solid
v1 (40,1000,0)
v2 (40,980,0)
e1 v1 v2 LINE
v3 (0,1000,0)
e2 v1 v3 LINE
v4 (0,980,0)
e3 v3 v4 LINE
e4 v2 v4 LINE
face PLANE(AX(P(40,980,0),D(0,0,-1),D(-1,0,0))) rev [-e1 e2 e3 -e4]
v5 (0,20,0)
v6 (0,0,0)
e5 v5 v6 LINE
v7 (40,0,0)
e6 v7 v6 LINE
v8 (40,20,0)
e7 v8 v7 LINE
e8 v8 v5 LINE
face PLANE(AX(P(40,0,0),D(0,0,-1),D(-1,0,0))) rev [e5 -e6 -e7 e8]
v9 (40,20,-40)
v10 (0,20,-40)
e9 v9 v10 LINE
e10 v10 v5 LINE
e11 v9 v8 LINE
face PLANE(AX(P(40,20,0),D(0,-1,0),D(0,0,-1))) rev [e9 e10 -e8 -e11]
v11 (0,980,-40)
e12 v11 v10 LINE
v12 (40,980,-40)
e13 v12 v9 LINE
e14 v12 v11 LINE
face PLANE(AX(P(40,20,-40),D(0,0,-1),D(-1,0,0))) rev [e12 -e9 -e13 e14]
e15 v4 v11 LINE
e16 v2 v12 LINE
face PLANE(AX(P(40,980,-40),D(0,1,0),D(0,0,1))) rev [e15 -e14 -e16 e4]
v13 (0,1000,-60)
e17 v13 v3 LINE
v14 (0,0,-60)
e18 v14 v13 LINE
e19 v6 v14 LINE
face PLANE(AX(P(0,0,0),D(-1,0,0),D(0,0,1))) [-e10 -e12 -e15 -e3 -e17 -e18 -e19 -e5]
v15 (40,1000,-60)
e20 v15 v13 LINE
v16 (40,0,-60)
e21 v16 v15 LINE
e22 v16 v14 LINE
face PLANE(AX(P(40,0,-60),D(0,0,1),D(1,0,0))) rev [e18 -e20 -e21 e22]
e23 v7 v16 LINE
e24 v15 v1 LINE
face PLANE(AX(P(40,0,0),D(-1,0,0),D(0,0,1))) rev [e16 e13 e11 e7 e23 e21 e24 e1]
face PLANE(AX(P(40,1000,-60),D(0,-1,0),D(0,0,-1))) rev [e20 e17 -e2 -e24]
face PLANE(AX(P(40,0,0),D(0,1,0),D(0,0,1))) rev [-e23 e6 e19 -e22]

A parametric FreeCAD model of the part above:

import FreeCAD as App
import Part
import Sketcher

doc = App.newDocument("Part")
body = doc.addObject("PartDesign::Body", "Body")

sketch1 = body.newObject("Sketcher::SketchObject", "Sketch")
sketch1.AttachmentSupport = (doc.getObject("YZ_Plane"), [""])
sketch1.MapMode = "FlatFace"
sketch1.addGeometry([
    Part.LineSegment(App.Vector(0, 0, 0), App.Vector(0, -60, 0)),
    Part.LineSegment(App.Vector(0, -60, 0), App.Vector(1000, -60, 0)),
    Part.LineSegment(App.Vector(1000, -60, 0), App.Vector(1000, 0, 0)),
    Part.LineSegment(App.Vector(1000, 0, 0), App.Vector(980, 0, 0)),
    Part.LineSegment(App.Vector(980, 0, 0), App.Vector(980, -40, 0)),
    Part.LineSegment(App.Vector(980, -40, 0), App.Vector(20, -40, 0)),
    Part.LineSegment(App.Vector(20, -40, 0), App.Vector(20, 0, 0)),
    Part.LineSegment(App.Vector(20, 0, 0), App.Vector(0, 0, 0)),
], False)
sketch1.addConstraint([
    Sketcher.Constraint("Coincident", 0, 2, 1, 1),
    Sketcher.Constraint("Coincident", 1, 2, 2, 1),
    Sketcher.Constraint("Coincident", 2, 2, 3, 1),
    Sketcher.Constraint("Coincident", 3, 2, 4, 1),
    Sketcher.Constraint("Coincident", 4, 2, 5, 1),
    Sketcher.Constraint("Coincident", 5, 2, 6, 1),
    Sketcher.Constraint("Coincident", 6, 2, 7, 1),
    Sketcher.Constraint("Coincident", 7, 2, 0, 1),
    Sketcher.Constraint("Vertical", 0),
    Sketcher.Constraint("Horizontal", 1),
    Sketcher.Constraint("Vertical", 2),
    Sketcher.Constraint("Horizontal", 3),
    Sketcher.Constraint("Vertical", 4),
    Sketcher.Constraint("Horizontal", 5),
    Sketcher.Constraint("Vertical", 6),
    Sketcher.Constraint("Horizontal", 7),
    Sketcher.Constraint("Coincident", 7, 2, -1, 1),
    Sketcher.Constraint("PointOnObject", 2, 2, -1),
    Sketcher.Constraint("Equal", 3, 7),
    Sketcher.Constraint("DistanceX", 1, 1, 1, 2, 1000.0),
    Sketcher.Constraint("DistanceX", 3, 2, 3, 1, 20.0),
    Sketcher.Constraint("DistanceY", 0, 2, 0, 1, 60.0),
    Sketcher.Constraint("DistanceY", 4, 2, 4, 1, 40.0),
])
pad1 = body.newObject("PartDesign::Pad", "Pad")
pad1.Profile = sketch1
pad1.Length = 40

doc.recompute()
